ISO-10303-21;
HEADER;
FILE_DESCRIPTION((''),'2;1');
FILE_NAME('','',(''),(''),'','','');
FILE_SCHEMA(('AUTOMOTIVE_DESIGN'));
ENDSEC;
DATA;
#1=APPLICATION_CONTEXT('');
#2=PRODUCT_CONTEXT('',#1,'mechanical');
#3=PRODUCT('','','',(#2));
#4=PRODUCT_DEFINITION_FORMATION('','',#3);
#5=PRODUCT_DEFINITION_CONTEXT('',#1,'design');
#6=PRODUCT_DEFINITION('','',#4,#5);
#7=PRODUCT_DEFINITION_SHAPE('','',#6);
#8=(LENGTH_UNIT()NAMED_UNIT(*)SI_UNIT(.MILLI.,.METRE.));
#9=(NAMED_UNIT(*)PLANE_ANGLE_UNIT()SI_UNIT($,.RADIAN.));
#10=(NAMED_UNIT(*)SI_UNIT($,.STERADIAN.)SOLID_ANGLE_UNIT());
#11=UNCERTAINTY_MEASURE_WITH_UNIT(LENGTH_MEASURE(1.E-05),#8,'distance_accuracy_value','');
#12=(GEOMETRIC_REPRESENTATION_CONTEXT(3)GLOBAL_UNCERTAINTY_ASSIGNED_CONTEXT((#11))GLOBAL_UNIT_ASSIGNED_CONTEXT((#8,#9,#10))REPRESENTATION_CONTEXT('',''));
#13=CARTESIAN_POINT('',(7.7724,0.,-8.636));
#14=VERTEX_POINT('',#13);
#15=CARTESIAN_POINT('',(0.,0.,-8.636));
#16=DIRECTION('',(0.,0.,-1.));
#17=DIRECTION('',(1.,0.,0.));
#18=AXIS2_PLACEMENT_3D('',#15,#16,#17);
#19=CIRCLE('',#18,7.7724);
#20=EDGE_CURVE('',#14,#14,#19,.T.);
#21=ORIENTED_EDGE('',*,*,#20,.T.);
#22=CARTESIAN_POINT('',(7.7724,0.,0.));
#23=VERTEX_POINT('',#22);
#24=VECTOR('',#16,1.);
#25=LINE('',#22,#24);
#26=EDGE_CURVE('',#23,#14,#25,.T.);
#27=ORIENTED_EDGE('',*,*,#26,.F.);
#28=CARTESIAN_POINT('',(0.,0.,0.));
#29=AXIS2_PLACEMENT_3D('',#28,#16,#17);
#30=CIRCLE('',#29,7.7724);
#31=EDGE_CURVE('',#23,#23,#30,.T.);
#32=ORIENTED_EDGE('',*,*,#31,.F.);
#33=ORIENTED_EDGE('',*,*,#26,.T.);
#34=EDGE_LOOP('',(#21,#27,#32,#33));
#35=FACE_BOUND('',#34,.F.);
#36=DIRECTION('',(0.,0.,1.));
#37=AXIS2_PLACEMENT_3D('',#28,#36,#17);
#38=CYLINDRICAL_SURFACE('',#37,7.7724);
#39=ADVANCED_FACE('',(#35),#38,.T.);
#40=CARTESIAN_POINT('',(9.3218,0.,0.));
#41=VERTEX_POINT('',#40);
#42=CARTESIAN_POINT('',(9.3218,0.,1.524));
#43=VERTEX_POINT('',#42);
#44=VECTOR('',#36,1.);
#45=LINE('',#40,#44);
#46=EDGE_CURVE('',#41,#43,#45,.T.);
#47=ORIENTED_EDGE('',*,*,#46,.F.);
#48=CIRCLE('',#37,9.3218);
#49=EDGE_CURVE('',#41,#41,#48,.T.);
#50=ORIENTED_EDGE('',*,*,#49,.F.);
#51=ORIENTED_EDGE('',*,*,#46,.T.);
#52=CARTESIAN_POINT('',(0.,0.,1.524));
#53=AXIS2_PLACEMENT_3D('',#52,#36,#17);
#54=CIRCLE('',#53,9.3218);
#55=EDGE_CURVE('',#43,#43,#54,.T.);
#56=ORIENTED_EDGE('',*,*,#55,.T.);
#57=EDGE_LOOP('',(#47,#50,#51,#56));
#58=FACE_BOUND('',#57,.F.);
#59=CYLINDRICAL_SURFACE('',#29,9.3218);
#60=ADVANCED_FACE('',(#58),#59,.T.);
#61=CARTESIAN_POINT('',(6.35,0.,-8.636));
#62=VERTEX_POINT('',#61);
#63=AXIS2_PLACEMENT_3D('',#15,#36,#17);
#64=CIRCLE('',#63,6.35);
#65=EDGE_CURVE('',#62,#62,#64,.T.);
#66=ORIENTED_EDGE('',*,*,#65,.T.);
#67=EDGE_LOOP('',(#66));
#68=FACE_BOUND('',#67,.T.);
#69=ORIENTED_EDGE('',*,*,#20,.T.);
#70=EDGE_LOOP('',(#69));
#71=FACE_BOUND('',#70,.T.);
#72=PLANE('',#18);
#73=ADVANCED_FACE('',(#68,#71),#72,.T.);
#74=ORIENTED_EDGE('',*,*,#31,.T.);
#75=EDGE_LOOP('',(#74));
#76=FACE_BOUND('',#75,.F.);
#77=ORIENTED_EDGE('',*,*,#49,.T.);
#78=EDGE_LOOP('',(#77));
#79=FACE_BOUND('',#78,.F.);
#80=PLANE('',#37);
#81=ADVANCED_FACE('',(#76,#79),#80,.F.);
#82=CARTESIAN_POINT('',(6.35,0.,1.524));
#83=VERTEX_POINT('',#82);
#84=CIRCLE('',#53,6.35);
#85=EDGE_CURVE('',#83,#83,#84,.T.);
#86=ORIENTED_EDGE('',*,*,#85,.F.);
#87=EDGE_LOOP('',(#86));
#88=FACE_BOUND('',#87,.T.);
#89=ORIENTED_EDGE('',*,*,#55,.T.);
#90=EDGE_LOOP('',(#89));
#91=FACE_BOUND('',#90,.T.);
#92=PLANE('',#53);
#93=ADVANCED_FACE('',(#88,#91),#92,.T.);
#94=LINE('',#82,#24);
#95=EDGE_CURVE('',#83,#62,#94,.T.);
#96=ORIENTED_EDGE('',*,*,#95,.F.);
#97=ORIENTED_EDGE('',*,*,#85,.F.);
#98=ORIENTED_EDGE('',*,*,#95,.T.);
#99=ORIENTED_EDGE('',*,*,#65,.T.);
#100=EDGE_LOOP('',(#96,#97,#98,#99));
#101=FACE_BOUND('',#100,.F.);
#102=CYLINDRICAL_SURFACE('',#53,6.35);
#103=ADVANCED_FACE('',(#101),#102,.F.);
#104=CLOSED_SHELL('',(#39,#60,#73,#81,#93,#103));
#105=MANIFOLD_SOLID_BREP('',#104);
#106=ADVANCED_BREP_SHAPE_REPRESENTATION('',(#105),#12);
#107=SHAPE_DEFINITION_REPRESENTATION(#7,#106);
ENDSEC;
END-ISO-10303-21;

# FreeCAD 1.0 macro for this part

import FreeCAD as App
import Part
import Sketcher
Q = App.Units.Quantity

doc = App.newDocument("Part")
body = doc.addObject("PartDesign::Body", "Body")

sketch1 = body.newObject("Sketcher::SketchObject", "Sketch")
sketch1.AttachmentSupport = (doc.getObject("XY_Plane"), [""])
sketch1.MapMode = "FlatFace"
sketch1.addGeometry(Part.Circle(App.Vector(0, 0, 0), App.Vector(0, 0, 1), 9.3218), False)
sketch1.addConstraint(Sketcher.Constraint("Coincident", 0, 3, -1, 1))
sketch1.addConstraint(Sketcher.Constraint("Diameter", 0, Q("0.734 in")))
pad1 = body.newObject("PartDesign::Pad", "Pad")
pad1.Profile = sketch1
pad1.Length = Q("0.06 in")

sketch2 = body.newObject("Sketcher::SketchObject", "Sketch001")
sketch2.AttachmentSupport = (doc.getObject("XY_Plane"), [""])
sketch2.MapMode = "FlatFace"
sketch2.addGeometry(Part.Circle(App.Vector(0, 0, 0), App.Vector(0, 0, 1), 7.7724), False)
sketch2.addConstraint(Sketcher.Constraint("Coincident", 0, 3, -1, 1))
sketch2.addConstraint(Sketcher.Constraint("Diameter", 0, Q("0.612 in")))
pad2 = body.newObject("PartDesign::Pad", "Pad001")
pad2.Profile = sketch2
pad2.Length = Q("0.34 in")
pad2.Reversed = True

sketch3 = body.newObject("Sketcher::SketchObject", "Sketch002")
sketch3.AttachmentSupport = (doc.getObject("XY_Plane"), [""])
sketch3.MapMode = "FlatFace"
sketch3.AttachmentOffset = App.Placement(App.Vector(0, 0, 0.06 * 25.4), App.Rotation())
sketch3.addGeometry(Part.Circle(App.Vector(0, 0, 0), App.Vector(0, 0, 1), 6.35), False)
sketch3.addConstraint(Sketcher.Constraint("Coincident", 0, 3, -1, 1))
sketch3.addConstraint(Sketcher.Constraint("Diameter", 0, Q("0.5 in")))
pocket1 = body.newObject("PartDesign::Pocket", "Pocket")
pocket1.Profile = sketch3
pocket1.Type = "ThroughAll"

doc.recompute()
